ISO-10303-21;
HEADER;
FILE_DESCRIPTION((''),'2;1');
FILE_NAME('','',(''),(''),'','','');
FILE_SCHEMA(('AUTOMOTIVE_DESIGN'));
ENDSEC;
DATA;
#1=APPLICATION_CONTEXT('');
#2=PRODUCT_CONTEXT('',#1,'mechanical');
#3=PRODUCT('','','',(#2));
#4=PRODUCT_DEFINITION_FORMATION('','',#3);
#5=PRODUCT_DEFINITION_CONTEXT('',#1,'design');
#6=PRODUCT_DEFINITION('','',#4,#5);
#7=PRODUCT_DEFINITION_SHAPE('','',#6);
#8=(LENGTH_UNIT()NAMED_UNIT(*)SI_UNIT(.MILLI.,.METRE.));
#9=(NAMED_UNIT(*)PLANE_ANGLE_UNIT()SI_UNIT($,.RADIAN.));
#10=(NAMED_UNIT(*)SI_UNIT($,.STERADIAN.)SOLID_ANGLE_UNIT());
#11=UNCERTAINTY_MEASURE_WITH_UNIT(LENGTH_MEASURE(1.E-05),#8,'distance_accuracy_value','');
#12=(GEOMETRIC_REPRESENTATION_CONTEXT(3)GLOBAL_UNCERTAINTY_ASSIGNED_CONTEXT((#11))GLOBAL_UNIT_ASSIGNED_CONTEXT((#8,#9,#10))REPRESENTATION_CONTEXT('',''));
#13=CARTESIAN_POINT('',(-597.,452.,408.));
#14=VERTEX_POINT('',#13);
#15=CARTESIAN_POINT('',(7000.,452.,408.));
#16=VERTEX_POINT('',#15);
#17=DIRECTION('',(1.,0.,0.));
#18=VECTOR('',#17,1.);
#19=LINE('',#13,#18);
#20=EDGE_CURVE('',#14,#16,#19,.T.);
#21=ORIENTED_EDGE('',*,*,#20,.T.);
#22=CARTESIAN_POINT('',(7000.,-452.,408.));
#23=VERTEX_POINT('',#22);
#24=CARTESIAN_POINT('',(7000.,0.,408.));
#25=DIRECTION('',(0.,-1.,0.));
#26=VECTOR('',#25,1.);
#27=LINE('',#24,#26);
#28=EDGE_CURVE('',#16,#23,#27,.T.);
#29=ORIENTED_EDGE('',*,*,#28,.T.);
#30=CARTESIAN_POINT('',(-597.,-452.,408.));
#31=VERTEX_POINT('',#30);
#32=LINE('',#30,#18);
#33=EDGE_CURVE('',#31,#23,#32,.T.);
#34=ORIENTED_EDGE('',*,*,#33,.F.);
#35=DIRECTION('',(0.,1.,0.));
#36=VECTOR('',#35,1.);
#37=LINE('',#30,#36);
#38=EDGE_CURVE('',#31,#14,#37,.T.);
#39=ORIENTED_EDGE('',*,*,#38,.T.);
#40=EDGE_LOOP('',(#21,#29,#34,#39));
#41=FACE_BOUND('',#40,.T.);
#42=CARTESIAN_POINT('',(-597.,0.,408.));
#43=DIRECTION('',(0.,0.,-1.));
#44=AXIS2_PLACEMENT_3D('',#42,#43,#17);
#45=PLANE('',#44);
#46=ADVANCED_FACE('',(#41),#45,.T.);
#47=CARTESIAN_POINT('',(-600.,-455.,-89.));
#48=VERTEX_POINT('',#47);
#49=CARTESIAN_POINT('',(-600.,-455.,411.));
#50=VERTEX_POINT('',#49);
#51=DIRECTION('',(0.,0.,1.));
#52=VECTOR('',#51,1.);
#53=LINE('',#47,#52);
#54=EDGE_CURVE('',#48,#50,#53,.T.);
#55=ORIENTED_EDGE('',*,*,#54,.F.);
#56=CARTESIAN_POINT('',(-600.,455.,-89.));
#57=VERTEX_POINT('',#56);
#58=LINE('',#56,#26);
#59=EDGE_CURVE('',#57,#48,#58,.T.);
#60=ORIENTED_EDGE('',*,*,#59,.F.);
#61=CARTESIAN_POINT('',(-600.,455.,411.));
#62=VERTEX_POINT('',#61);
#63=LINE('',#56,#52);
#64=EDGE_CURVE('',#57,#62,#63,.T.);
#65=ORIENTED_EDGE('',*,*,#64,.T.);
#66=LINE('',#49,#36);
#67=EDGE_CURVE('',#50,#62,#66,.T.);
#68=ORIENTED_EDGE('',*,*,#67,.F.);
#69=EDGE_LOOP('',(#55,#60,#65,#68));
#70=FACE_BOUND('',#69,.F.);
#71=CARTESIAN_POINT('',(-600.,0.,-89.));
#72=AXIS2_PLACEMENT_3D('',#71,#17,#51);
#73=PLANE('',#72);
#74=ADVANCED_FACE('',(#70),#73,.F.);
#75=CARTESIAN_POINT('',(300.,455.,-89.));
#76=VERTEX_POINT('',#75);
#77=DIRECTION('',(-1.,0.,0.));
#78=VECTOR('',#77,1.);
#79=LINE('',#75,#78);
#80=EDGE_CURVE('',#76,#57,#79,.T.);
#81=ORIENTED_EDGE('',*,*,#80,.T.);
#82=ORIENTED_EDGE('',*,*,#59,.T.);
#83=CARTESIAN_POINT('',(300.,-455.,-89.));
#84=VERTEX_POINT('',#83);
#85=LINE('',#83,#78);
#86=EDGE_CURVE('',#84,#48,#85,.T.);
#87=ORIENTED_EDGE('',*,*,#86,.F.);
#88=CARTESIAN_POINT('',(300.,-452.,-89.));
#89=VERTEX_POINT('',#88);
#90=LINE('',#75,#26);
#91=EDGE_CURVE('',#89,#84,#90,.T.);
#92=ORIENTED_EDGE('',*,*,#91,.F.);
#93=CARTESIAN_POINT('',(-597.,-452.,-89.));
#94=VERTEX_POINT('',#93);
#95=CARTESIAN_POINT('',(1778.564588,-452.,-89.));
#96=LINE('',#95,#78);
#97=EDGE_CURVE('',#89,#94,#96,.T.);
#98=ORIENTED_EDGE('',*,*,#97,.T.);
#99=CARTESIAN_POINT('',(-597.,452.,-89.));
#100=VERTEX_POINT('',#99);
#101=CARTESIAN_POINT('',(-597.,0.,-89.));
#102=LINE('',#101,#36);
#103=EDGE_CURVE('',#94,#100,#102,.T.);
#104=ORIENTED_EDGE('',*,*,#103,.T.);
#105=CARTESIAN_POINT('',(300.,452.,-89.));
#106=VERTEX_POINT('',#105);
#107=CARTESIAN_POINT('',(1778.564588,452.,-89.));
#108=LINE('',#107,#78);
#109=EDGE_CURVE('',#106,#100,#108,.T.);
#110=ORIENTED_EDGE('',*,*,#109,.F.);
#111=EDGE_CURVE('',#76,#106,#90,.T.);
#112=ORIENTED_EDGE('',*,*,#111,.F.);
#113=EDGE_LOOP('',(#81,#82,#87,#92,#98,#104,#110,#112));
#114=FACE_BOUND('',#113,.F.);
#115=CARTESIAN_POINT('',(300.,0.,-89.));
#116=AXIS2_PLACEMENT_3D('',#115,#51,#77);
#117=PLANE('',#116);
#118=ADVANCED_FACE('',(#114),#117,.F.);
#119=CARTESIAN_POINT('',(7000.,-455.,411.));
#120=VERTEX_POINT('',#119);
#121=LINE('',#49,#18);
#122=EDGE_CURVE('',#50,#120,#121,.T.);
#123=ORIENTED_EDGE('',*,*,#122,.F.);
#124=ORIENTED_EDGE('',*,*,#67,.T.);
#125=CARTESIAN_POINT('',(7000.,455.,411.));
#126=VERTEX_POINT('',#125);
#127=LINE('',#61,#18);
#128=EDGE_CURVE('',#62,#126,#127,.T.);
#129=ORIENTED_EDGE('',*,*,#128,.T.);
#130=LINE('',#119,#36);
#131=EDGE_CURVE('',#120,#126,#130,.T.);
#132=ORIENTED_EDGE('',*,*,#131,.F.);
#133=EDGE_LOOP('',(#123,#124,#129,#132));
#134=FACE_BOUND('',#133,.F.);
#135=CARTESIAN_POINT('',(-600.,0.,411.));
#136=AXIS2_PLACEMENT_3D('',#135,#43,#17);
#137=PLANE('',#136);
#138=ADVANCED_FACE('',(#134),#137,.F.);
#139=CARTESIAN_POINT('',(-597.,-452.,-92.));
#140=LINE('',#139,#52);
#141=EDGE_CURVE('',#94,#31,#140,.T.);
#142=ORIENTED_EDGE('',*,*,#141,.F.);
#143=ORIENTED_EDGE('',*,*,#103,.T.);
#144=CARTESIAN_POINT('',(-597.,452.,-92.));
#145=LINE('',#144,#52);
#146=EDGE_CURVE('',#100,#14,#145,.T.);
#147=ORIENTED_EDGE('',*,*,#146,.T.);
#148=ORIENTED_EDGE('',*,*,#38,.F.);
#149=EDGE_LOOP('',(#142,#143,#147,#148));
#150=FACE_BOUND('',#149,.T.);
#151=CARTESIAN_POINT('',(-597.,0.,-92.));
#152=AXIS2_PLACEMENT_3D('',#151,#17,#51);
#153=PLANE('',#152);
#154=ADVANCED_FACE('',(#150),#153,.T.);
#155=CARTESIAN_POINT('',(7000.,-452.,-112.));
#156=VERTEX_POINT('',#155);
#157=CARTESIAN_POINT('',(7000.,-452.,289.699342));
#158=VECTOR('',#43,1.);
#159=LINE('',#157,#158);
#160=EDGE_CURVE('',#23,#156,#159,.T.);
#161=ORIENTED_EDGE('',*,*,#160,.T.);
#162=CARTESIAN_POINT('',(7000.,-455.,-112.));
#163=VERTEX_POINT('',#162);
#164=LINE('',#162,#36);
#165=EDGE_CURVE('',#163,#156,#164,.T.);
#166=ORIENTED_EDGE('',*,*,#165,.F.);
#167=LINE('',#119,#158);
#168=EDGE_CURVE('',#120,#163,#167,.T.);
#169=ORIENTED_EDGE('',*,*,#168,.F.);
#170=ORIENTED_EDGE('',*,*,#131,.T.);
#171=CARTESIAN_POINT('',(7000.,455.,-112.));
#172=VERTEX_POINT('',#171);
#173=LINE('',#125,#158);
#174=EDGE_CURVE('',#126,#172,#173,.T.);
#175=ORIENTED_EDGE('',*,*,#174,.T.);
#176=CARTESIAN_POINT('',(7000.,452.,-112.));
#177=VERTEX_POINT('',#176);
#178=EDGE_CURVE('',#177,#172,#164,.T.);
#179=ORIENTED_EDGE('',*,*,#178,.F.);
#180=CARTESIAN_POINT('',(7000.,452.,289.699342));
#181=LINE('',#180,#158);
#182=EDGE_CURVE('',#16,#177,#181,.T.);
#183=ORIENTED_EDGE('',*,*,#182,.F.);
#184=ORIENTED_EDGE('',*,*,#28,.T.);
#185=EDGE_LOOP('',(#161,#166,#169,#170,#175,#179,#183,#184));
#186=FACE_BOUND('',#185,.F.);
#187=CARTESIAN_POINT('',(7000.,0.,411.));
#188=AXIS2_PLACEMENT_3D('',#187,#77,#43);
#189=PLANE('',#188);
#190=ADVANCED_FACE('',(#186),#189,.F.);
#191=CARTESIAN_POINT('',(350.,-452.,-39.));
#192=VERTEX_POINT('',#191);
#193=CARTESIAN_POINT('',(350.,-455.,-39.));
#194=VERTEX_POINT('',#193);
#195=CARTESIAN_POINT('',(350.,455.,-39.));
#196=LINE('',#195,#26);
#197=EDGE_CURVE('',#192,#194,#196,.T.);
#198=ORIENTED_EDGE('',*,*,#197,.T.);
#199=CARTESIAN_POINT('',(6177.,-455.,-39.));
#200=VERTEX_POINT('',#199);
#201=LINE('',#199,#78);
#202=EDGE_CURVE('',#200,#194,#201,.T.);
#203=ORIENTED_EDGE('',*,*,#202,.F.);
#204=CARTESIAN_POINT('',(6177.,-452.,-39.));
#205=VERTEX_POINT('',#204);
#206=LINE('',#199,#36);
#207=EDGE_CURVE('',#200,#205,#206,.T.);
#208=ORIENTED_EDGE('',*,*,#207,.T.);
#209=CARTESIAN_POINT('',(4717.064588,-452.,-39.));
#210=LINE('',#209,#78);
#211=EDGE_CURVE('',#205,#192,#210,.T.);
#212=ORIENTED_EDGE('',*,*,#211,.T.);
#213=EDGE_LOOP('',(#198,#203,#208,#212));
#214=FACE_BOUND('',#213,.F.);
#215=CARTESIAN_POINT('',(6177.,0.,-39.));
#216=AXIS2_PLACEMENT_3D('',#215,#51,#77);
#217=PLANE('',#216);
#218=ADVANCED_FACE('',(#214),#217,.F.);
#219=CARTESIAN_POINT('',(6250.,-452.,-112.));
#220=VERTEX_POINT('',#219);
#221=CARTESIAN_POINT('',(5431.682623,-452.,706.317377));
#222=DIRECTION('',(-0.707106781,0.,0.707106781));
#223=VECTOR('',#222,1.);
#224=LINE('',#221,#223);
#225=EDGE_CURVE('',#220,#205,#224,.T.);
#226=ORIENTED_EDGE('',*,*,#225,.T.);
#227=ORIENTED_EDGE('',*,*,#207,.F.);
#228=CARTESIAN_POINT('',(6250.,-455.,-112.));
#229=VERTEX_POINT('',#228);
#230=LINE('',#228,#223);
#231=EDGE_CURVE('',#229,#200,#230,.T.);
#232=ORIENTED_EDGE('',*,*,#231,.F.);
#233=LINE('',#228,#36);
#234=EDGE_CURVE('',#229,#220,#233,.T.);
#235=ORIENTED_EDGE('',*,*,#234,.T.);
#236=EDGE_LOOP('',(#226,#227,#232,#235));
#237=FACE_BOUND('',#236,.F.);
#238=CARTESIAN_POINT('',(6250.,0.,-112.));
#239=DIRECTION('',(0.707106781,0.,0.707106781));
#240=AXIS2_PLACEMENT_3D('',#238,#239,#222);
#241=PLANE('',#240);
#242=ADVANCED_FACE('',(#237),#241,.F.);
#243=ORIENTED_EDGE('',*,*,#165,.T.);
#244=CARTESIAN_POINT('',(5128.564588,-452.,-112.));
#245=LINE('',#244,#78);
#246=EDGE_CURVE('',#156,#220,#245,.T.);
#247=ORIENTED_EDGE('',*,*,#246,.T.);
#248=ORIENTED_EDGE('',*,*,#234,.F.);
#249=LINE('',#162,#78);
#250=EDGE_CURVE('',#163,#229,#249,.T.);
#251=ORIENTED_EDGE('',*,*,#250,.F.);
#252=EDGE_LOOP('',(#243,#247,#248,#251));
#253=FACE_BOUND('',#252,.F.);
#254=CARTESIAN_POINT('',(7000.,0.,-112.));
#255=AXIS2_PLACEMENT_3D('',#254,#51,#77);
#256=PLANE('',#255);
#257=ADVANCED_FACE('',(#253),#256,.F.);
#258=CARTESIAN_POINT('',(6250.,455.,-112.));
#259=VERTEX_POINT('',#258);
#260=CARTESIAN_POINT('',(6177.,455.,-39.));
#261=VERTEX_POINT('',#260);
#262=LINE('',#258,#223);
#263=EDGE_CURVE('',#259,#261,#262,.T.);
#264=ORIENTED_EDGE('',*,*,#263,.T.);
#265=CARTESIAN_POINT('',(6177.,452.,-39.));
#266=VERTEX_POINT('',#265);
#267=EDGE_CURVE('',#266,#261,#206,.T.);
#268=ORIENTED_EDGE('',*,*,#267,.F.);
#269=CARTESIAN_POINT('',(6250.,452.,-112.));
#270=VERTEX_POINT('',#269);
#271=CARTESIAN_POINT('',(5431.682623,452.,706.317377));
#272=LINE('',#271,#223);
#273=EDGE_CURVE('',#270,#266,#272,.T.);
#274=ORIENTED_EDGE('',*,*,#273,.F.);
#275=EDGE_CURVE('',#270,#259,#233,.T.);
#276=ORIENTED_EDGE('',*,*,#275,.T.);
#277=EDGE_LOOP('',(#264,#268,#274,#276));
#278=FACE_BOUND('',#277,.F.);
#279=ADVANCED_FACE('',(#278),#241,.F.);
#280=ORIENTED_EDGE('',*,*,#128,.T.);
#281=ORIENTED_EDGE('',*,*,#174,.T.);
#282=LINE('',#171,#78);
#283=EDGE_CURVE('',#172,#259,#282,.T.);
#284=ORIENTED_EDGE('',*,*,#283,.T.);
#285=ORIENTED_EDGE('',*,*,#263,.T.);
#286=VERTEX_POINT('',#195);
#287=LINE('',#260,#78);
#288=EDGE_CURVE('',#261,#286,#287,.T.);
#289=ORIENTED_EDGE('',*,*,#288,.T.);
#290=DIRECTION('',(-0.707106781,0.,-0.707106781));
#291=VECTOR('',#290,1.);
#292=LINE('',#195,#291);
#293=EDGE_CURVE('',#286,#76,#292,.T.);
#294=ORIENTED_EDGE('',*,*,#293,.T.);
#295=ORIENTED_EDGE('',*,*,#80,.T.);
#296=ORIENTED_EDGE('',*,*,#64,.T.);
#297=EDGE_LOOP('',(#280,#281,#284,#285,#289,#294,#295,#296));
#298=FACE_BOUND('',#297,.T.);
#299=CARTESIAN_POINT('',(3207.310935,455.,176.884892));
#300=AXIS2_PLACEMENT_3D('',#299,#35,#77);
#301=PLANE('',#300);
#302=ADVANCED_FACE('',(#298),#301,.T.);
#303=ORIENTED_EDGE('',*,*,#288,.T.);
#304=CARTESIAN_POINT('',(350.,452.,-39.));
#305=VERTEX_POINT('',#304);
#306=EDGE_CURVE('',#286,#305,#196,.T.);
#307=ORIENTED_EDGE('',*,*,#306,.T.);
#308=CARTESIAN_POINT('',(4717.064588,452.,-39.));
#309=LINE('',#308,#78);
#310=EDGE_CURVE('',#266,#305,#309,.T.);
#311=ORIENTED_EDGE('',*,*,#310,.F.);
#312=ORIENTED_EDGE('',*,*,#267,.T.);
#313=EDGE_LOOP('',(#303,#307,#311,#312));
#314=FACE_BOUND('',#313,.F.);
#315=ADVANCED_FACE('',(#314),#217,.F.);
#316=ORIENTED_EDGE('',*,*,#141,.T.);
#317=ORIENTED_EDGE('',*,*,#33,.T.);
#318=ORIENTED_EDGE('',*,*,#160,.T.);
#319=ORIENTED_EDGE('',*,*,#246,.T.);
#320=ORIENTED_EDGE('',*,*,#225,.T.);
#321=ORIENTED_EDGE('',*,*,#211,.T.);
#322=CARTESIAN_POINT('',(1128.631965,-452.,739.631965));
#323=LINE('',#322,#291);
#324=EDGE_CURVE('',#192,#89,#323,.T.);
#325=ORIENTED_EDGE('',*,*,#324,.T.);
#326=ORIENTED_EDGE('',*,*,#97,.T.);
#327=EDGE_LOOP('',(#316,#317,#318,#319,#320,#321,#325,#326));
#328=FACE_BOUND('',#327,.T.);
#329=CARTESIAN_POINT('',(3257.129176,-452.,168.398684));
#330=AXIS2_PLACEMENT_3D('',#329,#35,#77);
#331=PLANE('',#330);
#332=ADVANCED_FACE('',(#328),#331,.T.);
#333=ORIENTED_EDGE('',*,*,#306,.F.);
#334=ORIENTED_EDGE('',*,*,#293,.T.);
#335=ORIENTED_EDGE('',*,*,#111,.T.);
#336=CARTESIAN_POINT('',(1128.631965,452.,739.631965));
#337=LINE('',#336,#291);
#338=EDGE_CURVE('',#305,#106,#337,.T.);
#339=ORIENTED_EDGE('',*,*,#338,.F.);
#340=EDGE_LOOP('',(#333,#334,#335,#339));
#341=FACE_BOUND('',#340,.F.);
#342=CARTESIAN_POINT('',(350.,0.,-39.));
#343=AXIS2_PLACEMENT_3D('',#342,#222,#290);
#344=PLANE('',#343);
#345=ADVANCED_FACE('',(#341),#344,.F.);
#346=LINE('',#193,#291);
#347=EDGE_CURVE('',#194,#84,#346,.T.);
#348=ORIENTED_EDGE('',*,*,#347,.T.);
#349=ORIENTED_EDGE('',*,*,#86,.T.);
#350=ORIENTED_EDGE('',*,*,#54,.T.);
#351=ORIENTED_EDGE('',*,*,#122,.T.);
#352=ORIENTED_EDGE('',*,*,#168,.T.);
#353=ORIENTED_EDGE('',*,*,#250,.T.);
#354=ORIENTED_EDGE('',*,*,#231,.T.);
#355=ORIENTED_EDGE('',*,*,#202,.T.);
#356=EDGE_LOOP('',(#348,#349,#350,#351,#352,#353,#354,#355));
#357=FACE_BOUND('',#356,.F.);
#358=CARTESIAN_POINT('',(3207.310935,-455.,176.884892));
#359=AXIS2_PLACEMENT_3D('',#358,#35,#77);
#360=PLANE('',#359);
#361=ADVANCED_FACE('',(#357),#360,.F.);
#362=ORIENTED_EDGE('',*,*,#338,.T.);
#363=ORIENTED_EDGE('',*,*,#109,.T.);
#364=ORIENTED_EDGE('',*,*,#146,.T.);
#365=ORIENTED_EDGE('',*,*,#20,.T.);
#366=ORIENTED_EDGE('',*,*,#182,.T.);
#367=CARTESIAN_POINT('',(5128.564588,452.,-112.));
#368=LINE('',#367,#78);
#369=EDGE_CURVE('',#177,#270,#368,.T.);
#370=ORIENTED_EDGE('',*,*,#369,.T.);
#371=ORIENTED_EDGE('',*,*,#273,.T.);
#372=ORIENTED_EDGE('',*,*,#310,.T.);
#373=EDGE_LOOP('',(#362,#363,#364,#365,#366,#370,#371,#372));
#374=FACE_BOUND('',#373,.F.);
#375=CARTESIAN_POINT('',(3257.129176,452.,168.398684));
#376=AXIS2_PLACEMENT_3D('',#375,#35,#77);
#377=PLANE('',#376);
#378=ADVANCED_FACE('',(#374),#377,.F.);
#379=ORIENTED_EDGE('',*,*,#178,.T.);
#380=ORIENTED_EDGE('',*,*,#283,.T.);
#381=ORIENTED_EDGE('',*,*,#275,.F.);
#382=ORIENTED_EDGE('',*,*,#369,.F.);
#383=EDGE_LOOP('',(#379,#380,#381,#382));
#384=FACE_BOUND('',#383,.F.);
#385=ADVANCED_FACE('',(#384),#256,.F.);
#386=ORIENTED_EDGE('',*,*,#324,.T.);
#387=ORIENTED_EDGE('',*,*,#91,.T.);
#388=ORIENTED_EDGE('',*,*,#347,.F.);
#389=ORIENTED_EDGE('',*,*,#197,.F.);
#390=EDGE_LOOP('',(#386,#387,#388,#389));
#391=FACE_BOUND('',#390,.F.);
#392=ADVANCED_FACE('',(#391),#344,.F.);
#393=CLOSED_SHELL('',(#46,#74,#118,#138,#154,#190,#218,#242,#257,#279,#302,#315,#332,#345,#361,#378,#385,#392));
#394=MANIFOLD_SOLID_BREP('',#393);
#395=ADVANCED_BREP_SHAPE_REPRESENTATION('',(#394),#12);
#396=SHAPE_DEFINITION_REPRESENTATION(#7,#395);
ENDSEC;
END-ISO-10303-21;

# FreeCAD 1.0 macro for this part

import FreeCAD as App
import Part
import Sketcher
from FreeCAD import Vector
Q = App.Units.Quantity

doc = App.newDocument("Part")
params = doc.addObject("Spreadsheet::Sheet", "Params")
for row, (alias, value) in enumerate([
    ("sketch1_width", "897 mm"),
    ("sketch1_width2", "5854 mm"),
    ("sketch1_width3", "850 mm"),
    ("sketch1_width4", "7694 mm"),
    ("sketch1_height", "500 mm"),
    ("pad1_length", "904 mm"),
    ("sketch2_width", "900 mm"),
    ("sketch2_width2", "5827 mm"),
    ("sketch2_width3", "750 mm"),
    ("sketch2_width4", "7600 mm"),
    ("sketch2_height", "500 mm"),
    ("pad2_length", "910 mm"),
], start=1):
    params.set(f"A{row}", alias)
    params.set(f"B{row}", "=" + value)
    params.setAlias(f"B{row}", alias)

body = doc.addObject("PartDesign::Body", "Body")

# Sketch on XZ plane
sketch1 = body.newObject("Sketcher::SketchObject", "Sketch")
sketch1.AttachmentSupport = (doc.getObject("XZ_Plane"), [""])
sketch1.MapMode = "FlatFace"
sketch1.addGeometry([
    Part.LineSegment(Vector(-597, 411, 0), Vector(-597, -89, 0)),  # 0
    Part.LineSegment(Vector(-597, -89, 0), Vector(300, -89, 0)),  # 1
    Part.LineSegment(Vector(300, -89, 0), Vector(335, -54, 0)),  # 2
    Part.LineSegment(Vector(335, -54, 0), Vector(6189, -54, 0)),  # 3
    Part.LineSegment(Vector(6189, -54, 0), Vector(6247, -112, 0)),  # 4
    Part.LineSegment(Vector(6247, -112, 0), Vector(7097, -112, 0)),  # 5
    Part.LineSegment(Vector(7097, -112, 0), Vector(7097, 411, 0)),  # 6
    Part.LineSegment(Vector(7097, 411, 0), Vector(-597, 411, 0)),  # 7
], False)
sketch1.addConstraint([
    Sketcher.Constraint("Coincident", 0, 2, 1, 1),
    Sketcher.Constraint("Coincident", 1, 2, 2, 1),
    Sketcher.Constraint("Coincident", 2, 2, 3, 1),
    Sketcher.Constraint("Coincident", 3, 2, 4, 1),
    Sketcher.Constraint("Coincident", 4, 2, 5, 1),
    Sketcher.Constraint("Coincident", 5, 2, 6, 1),
    Sketcher.Constraint("Coincident", 6, 2, 7, 1),
    Sketcher.Constraint("Coincident", 7, 2, 0, 1),
    Sketcher.Constraint("Vertical", 0),
    Sketcher.Constraint("Horizontal", 1),
    Sketcher.Constraint("Horizontal", 3),
    Sketcher.Constraint("Horizontal", 5),
    Sketcher.Constraint("Vertical", 6),
    Sketcher.Constraint("Horizontal", 7),
    Sketcher.Constraint("Perpendicular", 2, 4),
    Sketcher.Constraint("DistanceX", 1, 1, 1, 2, 897.0),
    Sketcher.Constraint("DistanceX", 3, 1, 3, 2, 5854.0),
    Sketcher.Constraint("DistanceX", 5, 1, 5, 2, 850.0),
    Sketcher.Constraint("DistanceX", 7, 2, 7, 1, 7694.0),
    Sketcher.Constraint("DistanceY", 0, 2, 0, 1, 500.0),
    Sketcher.Constraint("DistanceY", 6, 1, 6, 2, 523.0),
    Sketcher.Constraint("Angle", 2, Q("45 deg")),
    Sketcher.Constraint("DistanceX", 0, 2, -1, 1, 597.0),
    Sketcher.Constraint("DistanceY", 0, 2, -1, 1, 89.0),
])
sketch1.setExpression("Constraints[15]", "Params.sketch1_width")
sketch1.setExpression("Constraints[16]", "Params.sketch1_width2")
sketch1.setExpression("Constraints[17]", "Params.sketch1_width3")
sketch1.setExpression("Constraints[18]", "Params.sketch1_width4")
sketch1.setExpression("Constraints[19]", "Params.sketch1_height")
pad1 = body.newObject("PartDesign::Pad", "Pad")
pad1.Profile = sketch1
pad1.setExpression("Length", "Params.pad1_length")
pad1.Midplane = True
body2 = doc.addObject("PartDesign::Body", "Body001")
doc.recompute()

body.Placement = App.Placement(Vector(0, 0, -3), App.Rotation(Vector(0, 0, 1), 0))
boolean = body2.newObject("PartDesign::Boolean", "Boolean")
boolean.Type = "Fuse"
boolean.addObjects([body])
body3 = doc.addObject("PartDesign::Body", "Body002")

# Sketch on XZ plane
sketch2 = body3.newObject("Sketcher::SketchObject", "Sketch001")
sketch2.AttachmentSupport = (doc.getObject("XZ_Plane002"), [""])
sketch2.MapMode = "FlatFace"
sketch2.addGeometry([
    Part.LineSegment(Vector(-600, 411, 0), Vector(-600, -89, 0)),  # 0
    Part.LineSegment(Vector(-600, -89, 0), Vector(300, -89, 0)),  # 1
    Part.LineSegment(Vector(300, -89, 0), Vector(350, -39, 0)),  # 2
    Part.LineSegment(Vector(350, -39, 0), Vector(6177, -39, 0)),  # 3
    Part.LineSegment(Vector(6177, -39, 0), Vector(6250, -112, 0)),  # 4
    Part.LineSegment(Vector(6250, -112, 0), Vector(7000, -112, 0)),  # 5
    Part.LineSegment(Vector(7000, -112, 0), Vector(7000, 411, 0)),  # 6
    Part.LineSegment(Vector(7000, 411, 0), Vector(-600, 411, 0)),  # 7
], False)
sketch2.addConstraint([
    Sketcher.Constraint("Coincident", 0, 2, 1, 1),
    Sketcher.Constraint("Coincident", 1, 2, 2, 1),
    Sketcher.Constraint("Coincident", 2, 2, 3, 1),
    Sketcher.Constraint("Coincident", 3, 2, 4, 1),
    Sketcher.Constraint("Coincident", 4, 2, 5, 1),
    Sketcher.Constraint("Coincident", 5, 2, 6, 1),
    Sketcher.Constraint("Coincident", 6, 2, 7, 1),
    Sketcher.Constraint("Coincident", 7, 2, 0, 1),
    Sketcher.Constraint("Vertical", 0),
    Sketcher.Constraint("Horizontal", 1),
    Sketcher.Constraint("Horizontal", 3),
    Sketcher.Constraint("Horizontal", 5),
    Sketcher.Constraint("Vertical", 6),
    Sketcher.Constraint("Horizontal", 7),
    Sketcher.Constraint("Perpendicular", 2, 4),
    Sketcher.Constraint("DistanceX", 1, 1, 1, 2, 900.0),
    Sketcher.Constraint("DistanceX", 3, 1, 3, 2, 5827.0),
    Sketcher.Constraint("DistanceX", 5, 1, 5, 2, 750.0),
    Sketcher.Constraint("DistanceX", 7, 2, 7, 1, 7600.0),
    Sketcher.Constraint("DistanceY", 0, 2, 0, 1, 500.0),
    Sketcher.Constraint("DistanceY", 6, 1, 6, 2, 523.0),
    Sketcher.Constraint("Angle", 2, Q("45 deg")),
    Sketcher.Constraint("DistanceX", 0, 2, -1, 1, 600.0),
    Sketcher.Constraint("DistanceY", 0, 2, -1, 1, 89.0),
])
sketch2.setExpression("Constraints[15]", "Params.sketch2_width")
sketch2.setExpression("Constraints[16]", "Params.sketch2_width2")
sketch2.setExpression("Constraints[17]", "Params.sketch2_width3")
sketch2.setExpression("Constraints[18]", "Params.sketch2_width4")
sketch2.setExpression("Constraints[19]", "Params.sketch2_height")
pad2 = body3.newObject("PartDesign::Pad", "Pad001")
pad2.Profile = sketch2
pad2.setExpression("Length", "Params.pad2_length")
pad2.Midplane = True
doc.recompute()

boolean2 = body3.newObject("PartDesign::Boolean", "Boolean001")
boolean2.Type = "Cut"
boolean2.addObjects([body2])

doc.recompute()
